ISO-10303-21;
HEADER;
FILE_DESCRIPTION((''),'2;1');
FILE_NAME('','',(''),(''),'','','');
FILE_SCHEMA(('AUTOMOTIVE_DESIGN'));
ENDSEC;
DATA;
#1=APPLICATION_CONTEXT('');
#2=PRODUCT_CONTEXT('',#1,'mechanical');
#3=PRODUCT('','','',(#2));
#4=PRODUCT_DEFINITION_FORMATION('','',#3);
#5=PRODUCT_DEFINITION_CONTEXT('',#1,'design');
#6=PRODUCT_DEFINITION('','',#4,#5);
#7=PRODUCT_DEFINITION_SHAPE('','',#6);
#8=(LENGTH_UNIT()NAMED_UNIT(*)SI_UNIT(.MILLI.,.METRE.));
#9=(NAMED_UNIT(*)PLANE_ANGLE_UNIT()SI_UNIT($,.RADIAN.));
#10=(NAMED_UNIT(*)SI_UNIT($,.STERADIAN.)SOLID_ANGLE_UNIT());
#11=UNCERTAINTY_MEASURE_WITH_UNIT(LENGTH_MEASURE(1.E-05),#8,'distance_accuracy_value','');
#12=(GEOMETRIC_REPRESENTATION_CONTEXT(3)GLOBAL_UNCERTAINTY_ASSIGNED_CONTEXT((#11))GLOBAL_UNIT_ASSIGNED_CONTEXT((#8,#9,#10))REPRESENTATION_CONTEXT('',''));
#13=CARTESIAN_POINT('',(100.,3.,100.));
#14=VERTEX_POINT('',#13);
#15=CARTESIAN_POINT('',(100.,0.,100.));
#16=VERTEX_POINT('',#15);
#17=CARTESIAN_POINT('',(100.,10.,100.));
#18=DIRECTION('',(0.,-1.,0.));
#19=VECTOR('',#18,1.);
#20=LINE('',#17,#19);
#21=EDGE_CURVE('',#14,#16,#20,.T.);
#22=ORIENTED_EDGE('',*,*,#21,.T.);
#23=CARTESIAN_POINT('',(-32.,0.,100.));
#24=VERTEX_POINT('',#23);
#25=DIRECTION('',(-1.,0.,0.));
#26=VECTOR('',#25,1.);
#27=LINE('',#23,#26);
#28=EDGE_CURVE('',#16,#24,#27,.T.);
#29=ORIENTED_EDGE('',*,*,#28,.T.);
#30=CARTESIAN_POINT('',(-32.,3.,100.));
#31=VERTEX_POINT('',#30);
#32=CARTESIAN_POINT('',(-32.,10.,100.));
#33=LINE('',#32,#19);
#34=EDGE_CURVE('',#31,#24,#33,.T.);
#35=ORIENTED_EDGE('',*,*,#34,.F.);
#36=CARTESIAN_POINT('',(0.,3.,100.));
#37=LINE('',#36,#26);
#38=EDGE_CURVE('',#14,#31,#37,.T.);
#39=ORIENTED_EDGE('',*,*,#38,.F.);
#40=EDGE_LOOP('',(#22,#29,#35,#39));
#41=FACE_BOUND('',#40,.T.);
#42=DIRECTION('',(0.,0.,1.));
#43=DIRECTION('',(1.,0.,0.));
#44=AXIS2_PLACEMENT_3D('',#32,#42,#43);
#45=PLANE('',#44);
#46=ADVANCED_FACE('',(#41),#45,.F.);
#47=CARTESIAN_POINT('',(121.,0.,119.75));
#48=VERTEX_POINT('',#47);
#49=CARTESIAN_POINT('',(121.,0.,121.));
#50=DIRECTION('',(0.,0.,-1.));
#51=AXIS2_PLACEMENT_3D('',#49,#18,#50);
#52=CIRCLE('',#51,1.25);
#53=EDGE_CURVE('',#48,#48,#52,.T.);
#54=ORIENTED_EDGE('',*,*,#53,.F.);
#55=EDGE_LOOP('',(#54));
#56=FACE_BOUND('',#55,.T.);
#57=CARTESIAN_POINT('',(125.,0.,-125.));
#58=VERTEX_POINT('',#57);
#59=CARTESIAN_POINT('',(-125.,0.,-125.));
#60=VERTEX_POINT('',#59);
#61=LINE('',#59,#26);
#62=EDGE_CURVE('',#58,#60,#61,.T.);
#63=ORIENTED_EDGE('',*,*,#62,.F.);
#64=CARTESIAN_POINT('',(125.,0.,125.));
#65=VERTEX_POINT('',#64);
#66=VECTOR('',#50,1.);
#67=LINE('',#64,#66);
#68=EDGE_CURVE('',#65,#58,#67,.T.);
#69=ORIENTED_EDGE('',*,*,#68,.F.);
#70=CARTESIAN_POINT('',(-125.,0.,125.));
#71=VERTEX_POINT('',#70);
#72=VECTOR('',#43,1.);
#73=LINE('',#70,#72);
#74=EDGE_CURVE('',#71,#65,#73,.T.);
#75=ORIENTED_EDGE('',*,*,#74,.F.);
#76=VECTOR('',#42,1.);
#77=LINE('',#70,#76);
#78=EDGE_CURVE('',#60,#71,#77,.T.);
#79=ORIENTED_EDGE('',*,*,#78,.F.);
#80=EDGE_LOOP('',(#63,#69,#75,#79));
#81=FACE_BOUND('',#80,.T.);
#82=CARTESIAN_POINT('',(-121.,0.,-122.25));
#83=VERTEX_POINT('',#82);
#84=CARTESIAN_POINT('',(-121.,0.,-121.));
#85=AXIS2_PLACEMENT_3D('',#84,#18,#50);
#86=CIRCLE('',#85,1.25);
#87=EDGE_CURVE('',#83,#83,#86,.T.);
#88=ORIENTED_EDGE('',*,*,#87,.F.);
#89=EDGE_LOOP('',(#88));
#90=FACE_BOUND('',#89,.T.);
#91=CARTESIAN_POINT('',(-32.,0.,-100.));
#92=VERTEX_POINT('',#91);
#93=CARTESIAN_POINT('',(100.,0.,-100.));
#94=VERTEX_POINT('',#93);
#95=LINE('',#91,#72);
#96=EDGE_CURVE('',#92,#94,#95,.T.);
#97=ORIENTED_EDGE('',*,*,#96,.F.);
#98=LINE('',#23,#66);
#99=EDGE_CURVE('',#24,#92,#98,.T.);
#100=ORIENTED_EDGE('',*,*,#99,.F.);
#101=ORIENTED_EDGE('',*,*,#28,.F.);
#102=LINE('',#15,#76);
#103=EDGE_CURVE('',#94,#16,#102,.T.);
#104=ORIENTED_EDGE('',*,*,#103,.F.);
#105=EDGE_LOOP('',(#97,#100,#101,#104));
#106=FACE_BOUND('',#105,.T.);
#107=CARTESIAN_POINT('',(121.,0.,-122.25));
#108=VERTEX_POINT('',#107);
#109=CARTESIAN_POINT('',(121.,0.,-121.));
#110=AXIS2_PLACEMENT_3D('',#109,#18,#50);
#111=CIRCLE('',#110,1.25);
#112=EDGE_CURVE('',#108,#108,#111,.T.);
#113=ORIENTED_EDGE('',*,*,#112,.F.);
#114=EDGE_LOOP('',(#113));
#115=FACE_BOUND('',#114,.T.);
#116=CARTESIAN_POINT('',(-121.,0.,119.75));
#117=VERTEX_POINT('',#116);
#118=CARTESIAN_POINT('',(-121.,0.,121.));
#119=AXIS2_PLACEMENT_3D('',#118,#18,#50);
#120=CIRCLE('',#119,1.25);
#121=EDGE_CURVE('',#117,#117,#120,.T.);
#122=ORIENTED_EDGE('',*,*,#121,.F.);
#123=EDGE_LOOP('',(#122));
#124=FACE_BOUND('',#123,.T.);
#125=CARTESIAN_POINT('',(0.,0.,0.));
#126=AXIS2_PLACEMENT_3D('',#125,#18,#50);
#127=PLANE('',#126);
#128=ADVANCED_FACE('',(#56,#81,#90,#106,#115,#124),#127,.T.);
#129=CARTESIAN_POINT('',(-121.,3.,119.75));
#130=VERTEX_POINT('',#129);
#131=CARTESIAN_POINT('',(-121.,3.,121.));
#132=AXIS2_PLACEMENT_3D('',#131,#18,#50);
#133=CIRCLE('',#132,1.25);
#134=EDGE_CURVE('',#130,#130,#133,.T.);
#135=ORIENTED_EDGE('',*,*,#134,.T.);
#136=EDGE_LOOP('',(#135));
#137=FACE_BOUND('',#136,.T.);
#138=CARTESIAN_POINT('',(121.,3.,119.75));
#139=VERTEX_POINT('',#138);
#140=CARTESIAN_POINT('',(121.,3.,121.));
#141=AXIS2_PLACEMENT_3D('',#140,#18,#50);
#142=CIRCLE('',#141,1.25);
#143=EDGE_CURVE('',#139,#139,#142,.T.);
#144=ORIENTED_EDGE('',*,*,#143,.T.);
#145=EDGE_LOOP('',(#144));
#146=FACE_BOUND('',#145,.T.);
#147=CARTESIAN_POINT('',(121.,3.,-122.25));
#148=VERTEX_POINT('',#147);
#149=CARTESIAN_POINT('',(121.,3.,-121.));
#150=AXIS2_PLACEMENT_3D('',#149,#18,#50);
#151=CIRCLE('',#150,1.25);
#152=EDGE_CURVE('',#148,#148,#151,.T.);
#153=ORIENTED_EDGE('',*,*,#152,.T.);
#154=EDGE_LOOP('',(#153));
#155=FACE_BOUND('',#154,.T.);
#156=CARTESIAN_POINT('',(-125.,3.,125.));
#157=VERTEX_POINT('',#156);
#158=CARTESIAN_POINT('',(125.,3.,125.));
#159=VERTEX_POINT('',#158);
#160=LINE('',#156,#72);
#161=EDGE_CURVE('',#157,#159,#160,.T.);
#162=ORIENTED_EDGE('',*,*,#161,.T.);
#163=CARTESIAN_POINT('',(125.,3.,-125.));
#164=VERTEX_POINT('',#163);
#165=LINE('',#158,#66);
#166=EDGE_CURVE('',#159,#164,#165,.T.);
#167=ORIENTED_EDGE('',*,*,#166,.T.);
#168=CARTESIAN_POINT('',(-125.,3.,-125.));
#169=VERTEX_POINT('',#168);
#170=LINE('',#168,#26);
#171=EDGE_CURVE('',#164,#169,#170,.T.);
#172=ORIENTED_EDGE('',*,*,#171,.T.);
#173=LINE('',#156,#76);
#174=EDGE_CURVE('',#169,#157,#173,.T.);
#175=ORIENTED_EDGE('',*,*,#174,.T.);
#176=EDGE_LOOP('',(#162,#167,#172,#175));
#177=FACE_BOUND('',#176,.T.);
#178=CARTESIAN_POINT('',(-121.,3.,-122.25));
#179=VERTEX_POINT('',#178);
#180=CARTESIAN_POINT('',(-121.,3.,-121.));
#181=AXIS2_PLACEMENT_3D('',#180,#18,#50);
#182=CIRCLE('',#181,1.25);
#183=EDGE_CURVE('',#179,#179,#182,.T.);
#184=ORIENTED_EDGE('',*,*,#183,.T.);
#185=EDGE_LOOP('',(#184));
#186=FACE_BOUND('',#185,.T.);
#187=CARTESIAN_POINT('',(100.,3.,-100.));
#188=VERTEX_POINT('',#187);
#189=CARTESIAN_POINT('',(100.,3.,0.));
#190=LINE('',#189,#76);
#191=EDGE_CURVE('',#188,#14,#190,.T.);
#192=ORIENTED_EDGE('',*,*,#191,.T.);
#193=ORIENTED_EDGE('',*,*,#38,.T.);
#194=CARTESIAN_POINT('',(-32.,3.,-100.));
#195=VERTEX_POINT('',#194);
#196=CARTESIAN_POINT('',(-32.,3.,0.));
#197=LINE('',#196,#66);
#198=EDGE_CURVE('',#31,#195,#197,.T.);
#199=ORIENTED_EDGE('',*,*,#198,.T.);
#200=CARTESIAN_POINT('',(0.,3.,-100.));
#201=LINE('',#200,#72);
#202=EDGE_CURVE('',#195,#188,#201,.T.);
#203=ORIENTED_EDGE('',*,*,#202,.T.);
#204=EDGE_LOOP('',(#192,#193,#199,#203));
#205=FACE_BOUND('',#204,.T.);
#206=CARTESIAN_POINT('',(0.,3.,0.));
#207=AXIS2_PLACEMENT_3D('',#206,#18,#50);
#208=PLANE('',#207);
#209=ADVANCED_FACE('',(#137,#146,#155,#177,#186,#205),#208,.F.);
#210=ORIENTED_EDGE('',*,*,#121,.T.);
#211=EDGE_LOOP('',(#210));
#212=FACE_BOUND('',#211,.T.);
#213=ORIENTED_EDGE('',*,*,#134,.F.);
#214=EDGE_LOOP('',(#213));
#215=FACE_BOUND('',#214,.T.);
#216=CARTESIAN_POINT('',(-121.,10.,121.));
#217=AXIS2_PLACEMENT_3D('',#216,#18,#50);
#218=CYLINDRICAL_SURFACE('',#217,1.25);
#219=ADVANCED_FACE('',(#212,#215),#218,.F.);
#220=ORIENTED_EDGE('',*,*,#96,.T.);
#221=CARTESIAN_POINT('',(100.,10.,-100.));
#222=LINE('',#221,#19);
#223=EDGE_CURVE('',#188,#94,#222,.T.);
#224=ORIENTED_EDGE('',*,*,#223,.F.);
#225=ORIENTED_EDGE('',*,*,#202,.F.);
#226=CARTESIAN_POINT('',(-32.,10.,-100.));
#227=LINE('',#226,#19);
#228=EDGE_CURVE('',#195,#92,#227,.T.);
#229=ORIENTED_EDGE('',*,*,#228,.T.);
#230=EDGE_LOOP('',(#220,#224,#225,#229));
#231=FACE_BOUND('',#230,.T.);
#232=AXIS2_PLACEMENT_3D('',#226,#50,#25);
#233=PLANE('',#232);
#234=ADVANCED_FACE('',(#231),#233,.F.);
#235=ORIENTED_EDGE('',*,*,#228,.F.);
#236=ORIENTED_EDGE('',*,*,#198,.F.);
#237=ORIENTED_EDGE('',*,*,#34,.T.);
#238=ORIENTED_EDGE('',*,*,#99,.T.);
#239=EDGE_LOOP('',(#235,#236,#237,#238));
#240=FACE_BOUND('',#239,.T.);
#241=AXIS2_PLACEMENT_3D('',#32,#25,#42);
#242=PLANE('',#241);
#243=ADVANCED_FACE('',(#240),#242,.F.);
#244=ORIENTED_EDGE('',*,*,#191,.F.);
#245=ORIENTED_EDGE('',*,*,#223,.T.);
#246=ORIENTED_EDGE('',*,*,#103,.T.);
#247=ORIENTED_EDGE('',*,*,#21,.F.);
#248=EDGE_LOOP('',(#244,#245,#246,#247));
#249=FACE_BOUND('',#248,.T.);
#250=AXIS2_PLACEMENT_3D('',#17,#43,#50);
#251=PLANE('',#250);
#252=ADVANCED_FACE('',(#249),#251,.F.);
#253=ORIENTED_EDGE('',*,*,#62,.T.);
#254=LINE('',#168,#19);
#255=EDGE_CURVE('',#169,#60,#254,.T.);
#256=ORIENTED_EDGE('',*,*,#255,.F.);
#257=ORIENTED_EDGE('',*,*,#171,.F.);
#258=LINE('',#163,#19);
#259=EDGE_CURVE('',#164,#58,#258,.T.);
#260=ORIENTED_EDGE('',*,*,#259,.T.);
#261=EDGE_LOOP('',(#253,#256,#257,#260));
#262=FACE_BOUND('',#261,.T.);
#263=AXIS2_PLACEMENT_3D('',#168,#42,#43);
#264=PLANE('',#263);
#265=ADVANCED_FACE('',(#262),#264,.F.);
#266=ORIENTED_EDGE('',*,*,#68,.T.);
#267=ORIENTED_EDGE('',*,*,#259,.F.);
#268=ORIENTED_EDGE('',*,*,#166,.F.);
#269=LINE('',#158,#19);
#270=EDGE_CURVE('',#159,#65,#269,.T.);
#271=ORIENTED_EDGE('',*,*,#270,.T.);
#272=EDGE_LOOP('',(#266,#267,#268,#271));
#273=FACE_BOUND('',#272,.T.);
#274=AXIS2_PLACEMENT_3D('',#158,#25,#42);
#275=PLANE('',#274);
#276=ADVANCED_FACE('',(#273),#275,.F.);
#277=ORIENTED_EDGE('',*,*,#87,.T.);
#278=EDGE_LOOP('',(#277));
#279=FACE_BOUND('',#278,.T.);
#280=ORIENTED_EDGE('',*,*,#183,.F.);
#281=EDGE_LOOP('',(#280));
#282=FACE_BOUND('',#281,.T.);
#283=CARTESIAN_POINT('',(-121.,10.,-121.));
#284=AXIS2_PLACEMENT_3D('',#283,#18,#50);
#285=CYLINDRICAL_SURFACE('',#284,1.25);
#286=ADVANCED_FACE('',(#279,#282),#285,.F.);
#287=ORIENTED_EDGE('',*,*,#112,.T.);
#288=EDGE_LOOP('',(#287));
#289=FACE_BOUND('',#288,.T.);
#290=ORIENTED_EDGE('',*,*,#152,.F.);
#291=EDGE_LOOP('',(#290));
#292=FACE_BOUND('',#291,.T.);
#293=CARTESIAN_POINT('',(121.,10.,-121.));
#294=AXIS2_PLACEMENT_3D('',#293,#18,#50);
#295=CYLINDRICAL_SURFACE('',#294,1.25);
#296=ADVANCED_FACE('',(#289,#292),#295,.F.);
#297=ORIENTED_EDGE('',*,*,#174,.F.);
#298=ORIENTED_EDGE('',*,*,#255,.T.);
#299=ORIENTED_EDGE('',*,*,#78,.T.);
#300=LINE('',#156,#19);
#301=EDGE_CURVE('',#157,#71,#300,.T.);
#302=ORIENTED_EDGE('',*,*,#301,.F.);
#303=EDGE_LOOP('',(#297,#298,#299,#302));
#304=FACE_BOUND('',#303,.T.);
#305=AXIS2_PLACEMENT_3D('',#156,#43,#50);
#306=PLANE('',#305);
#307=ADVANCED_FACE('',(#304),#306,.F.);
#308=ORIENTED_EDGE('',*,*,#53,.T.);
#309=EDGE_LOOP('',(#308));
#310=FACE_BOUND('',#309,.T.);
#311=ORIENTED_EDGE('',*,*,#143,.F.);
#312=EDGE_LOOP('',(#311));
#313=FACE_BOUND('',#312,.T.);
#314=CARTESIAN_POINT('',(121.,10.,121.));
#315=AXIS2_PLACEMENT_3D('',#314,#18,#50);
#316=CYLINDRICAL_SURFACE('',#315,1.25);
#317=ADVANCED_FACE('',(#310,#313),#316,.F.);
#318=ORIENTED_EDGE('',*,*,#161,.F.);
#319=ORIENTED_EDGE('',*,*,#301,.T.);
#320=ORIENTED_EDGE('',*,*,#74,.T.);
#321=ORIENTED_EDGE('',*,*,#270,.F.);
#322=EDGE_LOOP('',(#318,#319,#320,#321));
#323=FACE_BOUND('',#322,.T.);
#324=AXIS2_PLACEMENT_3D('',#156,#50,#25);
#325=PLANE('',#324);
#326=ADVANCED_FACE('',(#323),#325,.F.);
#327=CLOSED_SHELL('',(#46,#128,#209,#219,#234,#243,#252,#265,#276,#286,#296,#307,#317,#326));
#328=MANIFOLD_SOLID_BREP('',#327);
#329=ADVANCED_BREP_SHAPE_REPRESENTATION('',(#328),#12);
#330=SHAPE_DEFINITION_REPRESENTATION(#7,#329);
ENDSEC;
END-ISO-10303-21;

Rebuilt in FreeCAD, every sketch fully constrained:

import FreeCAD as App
import Part
import Sketcher

doc = App.newDocument("Part")
body = doc.addObject("PartDesign::Body", "Body")

# Sketch on XZ plane
sketch1 = doc.addObject("Sketcher::SketchObject", "Sketch")
body.addObject(sketch1)
sketch1.AttachmentSupport = (doc.XZ_Plane, [""])
sketch1.MapMode = "FlatFace"
sketch1.addGeometry(Part.LineSegment(App.Vector(-125, -125, 0), App.Vector(-125, 125, 0)), False)
sketch1.addGeometry(Part.LineSegment(App.Vector(-125, 125, 0), App.Vector(125, 125, 0)), False)
sketch1.addGeometry(Part.LineSegment(App.Vector(125, 125, 0), App.Vector(125, -125, 0)), False)
sketch1.addGeometry(Part.LineSegment(App.Vector(125, -125, 0), App.Vector(-125, -125, 0)), False)
sketch1.addConstraint(Sketcher.Constraint("Coincident", 0, 2, 1, 1))
sketch1.addConstraint(Sketcher.Constraint("Coincident", 1, 2, 2, 1))
sketch1.addConstraint(Sketcher.Constraint("Coincident", 2, 2, 3, 1))
sketch1.addConstraint(Sketcher.Constraint("Coincident", 3, 2, 0, 1))
sketch1.addConstraint(Sketcher.Constraint("Vertical", 0))
sketch1.addConstraint(Sketcher.Constraint("Horizontal", 1))
sketch1.addConstraint(Sketcher.Constraint("Vertical", 2))
sketch1.addConstraint(Sketcher.Constraint("Horizontal", 3))
sketch1.addConstraint(Sketcher.Constraint("Symmetric", 0, 2, 2, 2, -1, 1))
sketch1.addConstraint(Sketcher.Constraint("Equal", 3, 0))
sketch1.addConstraint(Sketcher.Constraint("DistanceX", 1, 1, 1, 2, 250.0))
pad1 = doc.addObject("PartDesign::Pad", "Pad")
body.addObject(pad1)
pad1.Profile = sketch1
pad1.Length = 3
pad1.Reversed = True

# Sketch on XZ plane
sketch2 = doc.addObject("Sketcher::SketchObject", "Sketch001")
body.addObject(sketch2)
sketch2.AttachmentSupport = (doc.XZ_Plane, [""])
sketch2.MapMode = "FlatFace"
sketch2.addGeometry(Part.LineSegment(App.Vector(-32, 100, 0), App.Vector(-32, -100, 0)), False)
sketch2.addGeometry(Part.LineSegment(App.Vector(-32, -100, 0), App.Vector(100, -100, 0)), False)
sketch2.addGeometry(Part.LineSegment(App.Vector(100, -100, 0), App.Vector(100, 100, 0)), False)
sketch2.addGeometry(Part.LineSegment(App.Vector(100, 100, 0), App.Vector(-32, 100, 0)), False)
sketch2.addConstraint(Sketcher.Constraint("Coincident", 0, 2, 1, 1))
sketch2.addConstraint(Sketcher.Constraint("Coincident", 1, 2, 2, 1))
sketch2.addConstraint(Sketcher.Constraint("Coincident", 2, 2, 3, 1))
sketch2.addConstraint(Sketcher.Constraint("Coincident", 3, 2, 0, 1))
sketch2.addConstraint(Sketcher.Constraint("Vertical", 0))
sketch2.addConstraint(Sketcher.Constraint("Horizontal", 1))
sketch2.addConstraint(Sketcher.Constraint("Vertical", 2))
sketch2.addConstraint(Sketcher.Constraint("Horizontal", 3))
sketch2.addConstraint(Sketcher.Constraint("DistanceX", 1, 1, 1, 2, 132.0))
sketch2.addConstraint(Sketcher.Constraint("DistanceY", 0, 2, 0, 1, 200.0))
sketch2.addConstraint(Sketcher.Constraint("DistanceX", 0, 2, -1, 1, 32.0))
sketch2.addConstraint(Sketcher.Constraint("DistanceY", 0, 2, -1, 1, 100.0))
pocket1 = doc.addObject("PartDesign::Pocket", "Pocket")
body.addObject(pocket1)
pocket1.Profile = sketch2
pocket1.Length = 10

# Sketch on XZ plane
sketch3 = doc.addObject("Sketcher::SketchObject", "Sketch002")
body.addObject(sketch3)
sketch3.AttachmentSupport = (doc.XZ_Plane, [""])
sketch3.MapMode = "FlatFace"
sketch3.addGeometry(Part.Circle(App.Vector(-121, 121, 0), App.Vector(0, 0, 1), 1.25), False)
sketch3.addGeometry(Part.Circle(App.Vector(121, 121, 0), App.Vector(0, 0, 1), 1.25), False)
sketch3.addGeometry(Part.Circle(App.Vector(121, -121, 0), App.Vector(0, 0, 1), 1.25), False)
sketch3.addGeometry(Part.Circle(App.Vector(-121, -121, 0), App.Vector(0, 0, 1), 1.25), False)
sketch3.addConstraint(Sketcher.Constraint("Equal", 0, 1))
sketch3.addConstraint(Sketcher.Constraint("Equal", 1, 2))
sketch3.addConstraint(Sketcher.Constraint("Equal", 2, 3))
sketch3.addConstraint(Sketcher.Constraint("Symmetric", 0, 3, 2, 3, -1, 1))
sketch3.addConstraint(Sketcher.Constraint("Symmetric", 1, 3, 3, 3, -1, 1))
sketch3.addConstraint(Sketcher.Constraint("Symmetric", 0, 3, 1, 3, -2))
sketch3.addConstraint(Sketcher.Constraint("Diameter", 0, 2.5))
sketch3.addConstraint(Sketcher.Constraint("DistanceX", 0, 3, -1, 1, 121.0))
sketch3.addConstraint(Sketcher.Constraint("DistanceY", -1, 1, 0, 3, 121.0))
pocket2 = doc.addObject("PartDesign::Pocket", "Pocket001")
body.addObject(pocket2)
pocket2.Profile = sketch3
pocket2.Length = 10

doc.recompute()
